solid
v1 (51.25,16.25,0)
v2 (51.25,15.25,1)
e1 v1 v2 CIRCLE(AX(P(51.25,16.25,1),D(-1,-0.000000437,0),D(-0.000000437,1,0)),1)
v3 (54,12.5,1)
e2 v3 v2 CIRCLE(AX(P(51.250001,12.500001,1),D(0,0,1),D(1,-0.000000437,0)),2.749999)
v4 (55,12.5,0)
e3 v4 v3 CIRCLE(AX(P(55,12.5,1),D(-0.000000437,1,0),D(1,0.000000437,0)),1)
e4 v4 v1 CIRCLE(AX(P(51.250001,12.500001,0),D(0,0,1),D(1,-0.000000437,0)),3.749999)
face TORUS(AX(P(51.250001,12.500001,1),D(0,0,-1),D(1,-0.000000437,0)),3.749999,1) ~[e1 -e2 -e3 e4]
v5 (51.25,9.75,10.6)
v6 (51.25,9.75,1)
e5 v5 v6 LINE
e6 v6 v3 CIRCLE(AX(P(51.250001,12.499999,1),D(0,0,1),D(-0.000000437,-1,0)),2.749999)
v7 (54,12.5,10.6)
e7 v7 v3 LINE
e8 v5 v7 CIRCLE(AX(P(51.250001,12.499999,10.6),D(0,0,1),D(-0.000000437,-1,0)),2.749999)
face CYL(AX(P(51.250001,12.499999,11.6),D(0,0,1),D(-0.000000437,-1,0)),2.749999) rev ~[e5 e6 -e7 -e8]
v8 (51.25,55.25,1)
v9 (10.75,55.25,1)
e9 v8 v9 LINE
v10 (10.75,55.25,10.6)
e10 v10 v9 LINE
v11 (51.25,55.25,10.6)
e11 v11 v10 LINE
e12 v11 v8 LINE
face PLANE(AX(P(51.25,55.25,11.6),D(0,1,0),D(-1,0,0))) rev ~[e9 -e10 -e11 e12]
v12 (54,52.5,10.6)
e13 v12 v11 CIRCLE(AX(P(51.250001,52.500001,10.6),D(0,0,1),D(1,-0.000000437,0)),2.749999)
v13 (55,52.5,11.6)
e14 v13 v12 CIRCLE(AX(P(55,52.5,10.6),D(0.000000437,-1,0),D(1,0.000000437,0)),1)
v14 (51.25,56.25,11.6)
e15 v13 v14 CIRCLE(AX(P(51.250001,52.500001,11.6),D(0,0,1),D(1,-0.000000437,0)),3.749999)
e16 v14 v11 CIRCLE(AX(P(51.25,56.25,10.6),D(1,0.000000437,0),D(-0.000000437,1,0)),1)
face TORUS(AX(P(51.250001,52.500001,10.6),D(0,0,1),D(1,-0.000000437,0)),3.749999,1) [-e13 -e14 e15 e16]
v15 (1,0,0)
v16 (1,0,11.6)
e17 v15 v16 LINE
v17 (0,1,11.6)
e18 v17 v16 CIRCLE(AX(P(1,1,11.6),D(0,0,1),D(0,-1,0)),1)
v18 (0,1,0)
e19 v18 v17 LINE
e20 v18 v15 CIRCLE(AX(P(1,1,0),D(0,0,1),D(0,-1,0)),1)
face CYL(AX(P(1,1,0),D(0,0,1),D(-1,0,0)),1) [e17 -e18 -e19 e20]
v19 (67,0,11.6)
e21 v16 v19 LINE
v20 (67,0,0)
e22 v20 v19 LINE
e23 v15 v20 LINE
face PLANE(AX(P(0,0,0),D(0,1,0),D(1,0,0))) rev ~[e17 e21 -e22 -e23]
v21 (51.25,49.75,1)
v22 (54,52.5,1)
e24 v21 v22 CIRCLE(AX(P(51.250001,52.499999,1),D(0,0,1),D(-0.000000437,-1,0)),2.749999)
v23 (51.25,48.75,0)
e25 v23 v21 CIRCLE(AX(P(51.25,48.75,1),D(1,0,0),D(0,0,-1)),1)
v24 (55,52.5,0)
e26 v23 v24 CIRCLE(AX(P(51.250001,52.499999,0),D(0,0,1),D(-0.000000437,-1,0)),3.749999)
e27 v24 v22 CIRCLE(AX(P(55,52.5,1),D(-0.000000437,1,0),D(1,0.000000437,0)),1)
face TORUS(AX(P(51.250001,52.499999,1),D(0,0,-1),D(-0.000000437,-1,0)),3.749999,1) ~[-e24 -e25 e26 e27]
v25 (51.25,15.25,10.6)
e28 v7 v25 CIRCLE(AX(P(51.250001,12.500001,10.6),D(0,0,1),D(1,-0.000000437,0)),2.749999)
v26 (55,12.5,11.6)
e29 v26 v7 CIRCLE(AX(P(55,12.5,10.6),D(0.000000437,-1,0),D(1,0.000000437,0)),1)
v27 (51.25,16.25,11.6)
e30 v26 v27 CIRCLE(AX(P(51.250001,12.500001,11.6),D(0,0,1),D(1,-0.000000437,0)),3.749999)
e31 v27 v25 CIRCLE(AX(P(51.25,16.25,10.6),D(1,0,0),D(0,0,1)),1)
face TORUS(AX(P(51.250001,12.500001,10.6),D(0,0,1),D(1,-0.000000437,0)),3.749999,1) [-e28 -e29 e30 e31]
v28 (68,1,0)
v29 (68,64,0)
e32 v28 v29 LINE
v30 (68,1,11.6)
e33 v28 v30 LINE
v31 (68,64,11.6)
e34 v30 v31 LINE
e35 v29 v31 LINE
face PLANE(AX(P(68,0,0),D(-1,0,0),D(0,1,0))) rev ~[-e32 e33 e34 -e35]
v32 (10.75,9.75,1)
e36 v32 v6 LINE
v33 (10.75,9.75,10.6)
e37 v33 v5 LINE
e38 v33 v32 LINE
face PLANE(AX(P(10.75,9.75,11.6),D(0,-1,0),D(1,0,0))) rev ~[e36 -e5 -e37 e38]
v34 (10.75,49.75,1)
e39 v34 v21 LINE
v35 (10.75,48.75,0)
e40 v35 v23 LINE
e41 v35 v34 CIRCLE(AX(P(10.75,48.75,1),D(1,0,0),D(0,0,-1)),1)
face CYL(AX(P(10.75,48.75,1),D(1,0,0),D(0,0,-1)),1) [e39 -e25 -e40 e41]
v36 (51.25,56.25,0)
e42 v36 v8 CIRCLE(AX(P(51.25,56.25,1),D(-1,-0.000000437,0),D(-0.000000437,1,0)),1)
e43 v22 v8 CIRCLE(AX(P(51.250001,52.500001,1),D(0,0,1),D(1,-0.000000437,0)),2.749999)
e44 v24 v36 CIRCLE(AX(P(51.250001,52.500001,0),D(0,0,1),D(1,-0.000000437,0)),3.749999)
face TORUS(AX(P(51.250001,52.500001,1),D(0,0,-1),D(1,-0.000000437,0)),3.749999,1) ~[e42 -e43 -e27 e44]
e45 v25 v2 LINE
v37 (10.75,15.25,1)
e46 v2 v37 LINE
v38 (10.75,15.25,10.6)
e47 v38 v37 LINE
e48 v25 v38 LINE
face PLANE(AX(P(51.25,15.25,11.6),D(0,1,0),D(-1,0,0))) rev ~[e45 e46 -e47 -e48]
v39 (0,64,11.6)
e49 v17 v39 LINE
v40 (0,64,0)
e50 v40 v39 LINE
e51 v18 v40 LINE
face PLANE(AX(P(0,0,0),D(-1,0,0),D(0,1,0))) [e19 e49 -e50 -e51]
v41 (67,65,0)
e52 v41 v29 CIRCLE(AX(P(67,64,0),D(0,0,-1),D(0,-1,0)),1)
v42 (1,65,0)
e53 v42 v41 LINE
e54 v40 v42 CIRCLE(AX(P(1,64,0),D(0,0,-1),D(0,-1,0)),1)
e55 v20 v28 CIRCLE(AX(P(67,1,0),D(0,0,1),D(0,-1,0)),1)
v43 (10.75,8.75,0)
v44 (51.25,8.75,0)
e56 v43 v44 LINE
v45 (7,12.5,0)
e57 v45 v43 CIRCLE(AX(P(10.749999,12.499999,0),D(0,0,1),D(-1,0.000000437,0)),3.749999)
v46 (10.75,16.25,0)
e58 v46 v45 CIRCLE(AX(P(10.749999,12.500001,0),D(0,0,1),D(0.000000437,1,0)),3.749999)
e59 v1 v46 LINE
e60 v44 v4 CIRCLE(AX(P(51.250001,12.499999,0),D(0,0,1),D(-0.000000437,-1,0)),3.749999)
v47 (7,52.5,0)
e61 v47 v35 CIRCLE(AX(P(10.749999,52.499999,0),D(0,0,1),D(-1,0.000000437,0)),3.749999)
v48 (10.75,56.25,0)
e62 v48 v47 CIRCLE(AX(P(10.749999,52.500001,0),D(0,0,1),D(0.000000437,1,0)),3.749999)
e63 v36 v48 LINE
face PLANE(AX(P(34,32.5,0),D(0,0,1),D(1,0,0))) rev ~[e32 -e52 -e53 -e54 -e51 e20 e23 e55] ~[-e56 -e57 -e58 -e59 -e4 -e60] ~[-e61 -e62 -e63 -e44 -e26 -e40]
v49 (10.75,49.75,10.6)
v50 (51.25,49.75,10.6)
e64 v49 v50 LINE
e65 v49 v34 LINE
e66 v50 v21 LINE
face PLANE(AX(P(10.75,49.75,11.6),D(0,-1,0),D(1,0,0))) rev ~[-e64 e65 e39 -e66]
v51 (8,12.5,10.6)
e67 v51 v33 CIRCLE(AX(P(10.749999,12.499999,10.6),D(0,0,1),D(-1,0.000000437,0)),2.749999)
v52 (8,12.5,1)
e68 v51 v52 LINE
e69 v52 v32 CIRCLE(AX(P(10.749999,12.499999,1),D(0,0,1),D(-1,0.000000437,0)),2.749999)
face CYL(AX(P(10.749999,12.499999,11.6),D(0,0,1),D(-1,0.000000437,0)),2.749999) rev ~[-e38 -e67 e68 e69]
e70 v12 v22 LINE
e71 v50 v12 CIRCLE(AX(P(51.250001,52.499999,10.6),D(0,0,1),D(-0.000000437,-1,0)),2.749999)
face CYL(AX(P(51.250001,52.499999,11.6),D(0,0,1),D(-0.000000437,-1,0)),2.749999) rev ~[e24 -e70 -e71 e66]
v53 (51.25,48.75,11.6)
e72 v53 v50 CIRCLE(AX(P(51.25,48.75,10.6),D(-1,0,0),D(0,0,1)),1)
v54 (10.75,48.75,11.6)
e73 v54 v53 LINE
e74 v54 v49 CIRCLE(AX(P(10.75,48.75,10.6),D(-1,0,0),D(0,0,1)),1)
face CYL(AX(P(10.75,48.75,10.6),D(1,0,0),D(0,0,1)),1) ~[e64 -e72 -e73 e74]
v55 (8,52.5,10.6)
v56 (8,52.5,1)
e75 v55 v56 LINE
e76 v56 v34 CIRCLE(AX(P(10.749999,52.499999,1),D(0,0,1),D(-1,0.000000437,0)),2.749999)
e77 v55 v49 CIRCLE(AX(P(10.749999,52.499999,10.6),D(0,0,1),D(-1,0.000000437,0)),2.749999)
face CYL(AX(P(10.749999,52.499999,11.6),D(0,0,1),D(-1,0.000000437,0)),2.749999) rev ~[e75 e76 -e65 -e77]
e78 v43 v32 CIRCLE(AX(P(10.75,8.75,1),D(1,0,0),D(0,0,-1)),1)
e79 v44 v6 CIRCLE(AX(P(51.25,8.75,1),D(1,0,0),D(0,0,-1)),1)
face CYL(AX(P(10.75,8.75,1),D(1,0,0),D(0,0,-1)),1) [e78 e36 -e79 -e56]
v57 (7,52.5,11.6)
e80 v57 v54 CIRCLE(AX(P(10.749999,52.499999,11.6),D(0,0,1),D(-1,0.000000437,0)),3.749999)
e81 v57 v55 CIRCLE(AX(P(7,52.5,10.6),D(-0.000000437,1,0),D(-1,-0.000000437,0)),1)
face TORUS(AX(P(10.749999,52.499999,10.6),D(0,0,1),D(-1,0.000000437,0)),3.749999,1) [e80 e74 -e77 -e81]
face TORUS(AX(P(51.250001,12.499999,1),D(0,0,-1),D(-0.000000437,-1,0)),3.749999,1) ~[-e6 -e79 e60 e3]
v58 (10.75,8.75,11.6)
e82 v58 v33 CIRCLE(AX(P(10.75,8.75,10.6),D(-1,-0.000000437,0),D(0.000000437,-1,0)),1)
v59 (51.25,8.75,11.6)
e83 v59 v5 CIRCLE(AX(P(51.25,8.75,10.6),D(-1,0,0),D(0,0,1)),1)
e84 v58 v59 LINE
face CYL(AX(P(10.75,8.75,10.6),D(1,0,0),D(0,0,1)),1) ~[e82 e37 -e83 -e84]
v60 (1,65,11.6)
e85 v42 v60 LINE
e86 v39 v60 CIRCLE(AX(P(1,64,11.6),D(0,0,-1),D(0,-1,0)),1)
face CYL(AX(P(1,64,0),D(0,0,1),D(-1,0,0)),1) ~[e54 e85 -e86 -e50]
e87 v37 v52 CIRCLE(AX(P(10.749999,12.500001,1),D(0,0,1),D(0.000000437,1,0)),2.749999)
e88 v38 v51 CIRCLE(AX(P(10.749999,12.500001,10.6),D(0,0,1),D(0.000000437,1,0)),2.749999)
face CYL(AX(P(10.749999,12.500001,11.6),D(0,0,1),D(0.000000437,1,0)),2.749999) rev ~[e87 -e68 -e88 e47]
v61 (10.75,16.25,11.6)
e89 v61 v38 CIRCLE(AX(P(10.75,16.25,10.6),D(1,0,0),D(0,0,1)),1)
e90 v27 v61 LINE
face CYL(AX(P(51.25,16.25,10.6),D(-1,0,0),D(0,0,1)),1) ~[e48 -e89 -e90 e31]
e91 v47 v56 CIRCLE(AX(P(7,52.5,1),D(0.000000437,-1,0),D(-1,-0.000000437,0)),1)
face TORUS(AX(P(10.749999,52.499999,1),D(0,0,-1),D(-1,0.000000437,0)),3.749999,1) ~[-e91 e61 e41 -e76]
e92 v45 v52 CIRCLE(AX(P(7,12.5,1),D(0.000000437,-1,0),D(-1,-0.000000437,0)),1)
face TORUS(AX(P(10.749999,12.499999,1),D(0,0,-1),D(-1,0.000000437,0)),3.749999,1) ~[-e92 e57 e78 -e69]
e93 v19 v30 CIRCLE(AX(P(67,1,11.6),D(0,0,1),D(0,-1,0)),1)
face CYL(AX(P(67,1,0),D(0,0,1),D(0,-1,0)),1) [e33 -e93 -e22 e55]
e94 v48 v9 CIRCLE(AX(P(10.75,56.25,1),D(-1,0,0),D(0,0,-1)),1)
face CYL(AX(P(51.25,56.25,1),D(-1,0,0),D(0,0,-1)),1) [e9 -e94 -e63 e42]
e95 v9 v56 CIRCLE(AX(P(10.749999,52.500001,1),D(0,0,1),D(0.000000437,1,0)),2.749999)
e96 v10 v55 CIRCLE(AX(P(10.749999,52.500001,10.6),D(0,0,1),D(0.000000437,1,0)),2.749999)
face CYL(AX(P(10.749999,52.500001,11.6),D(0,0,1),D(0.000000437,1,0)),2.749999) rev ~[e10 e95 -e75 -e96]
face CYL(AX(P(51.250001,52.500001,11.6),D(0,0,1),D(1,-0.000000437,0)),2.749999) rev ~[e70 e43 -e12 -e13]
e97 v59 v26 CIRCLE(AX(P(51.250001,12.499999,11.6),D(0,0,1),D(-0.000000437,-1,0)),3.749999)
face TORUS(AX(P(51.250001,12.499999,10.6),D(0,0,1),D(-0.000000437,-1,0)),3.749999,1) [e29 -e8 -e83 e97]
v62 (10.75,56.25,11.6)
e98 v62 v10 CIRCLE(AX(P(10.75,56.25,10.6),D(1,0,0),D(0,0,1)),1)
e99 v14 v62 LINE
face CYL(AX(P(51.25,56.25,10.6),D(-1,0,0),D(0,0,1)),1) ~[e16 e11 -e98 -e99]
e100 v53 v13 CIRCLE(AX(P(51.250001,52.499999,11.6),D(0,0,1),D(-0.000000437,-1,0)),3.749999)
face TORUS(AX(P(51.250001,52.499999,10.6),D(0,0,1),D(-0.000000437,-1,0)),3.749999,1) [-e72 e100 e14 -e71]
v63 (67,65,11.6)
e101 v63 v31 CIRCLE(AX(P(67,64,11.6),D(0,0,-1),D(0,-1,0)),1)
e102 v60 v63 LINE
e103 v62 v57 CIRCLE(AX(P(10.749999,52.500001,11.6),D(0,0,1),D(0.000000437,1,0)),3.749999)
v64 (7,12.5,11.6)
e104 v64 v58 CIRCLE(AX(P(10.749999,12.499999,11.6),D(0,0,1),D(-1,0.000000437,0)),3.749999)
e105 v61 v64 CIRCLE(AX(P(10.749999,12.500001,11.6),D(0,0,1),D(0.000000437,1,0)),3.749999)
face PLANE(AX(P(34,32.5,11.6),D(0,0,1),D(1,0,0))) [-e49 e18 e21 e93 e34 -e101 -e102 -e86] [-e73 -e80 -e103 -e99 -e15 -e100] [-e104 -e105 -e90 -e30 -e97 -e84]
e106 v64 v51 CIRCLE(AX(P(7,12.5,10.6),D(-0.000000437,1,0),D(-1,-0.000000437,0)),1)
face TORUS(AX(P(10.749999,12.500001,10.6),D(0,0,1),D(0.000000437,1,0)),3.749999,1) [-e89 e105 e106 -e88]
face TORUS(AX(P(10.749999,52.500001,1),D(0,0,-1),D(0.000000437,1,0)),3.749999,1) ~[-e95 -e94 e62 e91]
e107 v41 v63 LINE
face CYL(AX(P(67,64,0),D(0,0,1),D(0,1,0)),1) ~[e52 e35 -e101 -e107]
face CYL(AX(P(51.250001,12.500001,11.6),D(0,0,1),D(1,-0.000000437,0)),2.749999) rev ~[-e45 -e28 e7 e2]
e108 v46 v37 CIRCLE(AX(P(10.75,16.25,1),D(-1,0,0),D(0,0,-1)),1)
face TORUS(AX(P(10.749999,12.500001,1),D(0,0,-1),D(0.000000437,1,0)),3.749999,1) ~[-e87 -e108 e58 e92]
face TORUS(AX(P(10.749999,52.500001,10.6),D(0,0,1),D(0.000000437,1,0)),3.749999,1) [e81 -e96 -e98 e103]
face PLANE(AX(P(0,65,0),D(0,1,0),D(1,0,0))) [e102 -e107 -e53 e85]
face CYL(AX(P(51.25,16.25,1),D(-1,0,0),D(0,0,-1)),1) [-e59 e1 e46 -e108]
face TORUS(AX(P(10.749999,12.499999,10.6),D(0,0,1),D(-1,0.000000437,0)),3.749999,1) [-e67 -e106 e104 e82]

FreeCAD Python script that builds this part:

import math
import FreeCAD as App
import Part
import Sketcher
from FreeCAD import Vector


def edges_at(feature, points):
    """Names of the edges that pass closest to the given points."""
    edges = feature.Shape.Edges
    near = lambda p: min(range(len(edges)), key=lambda i: edges[i].distToShape(Part.Vertex(*p))[0])
    return sorted({f"Edge{near(p) + 1}" for p in points})


def add_polygon(sketch, points):
    """Adds a closed chain of lines whose ends are joined by coincident constraints."""
    first, n = sketch.GeometryCount, len(points)
    for a, b in zip(points, points[1:] + points[:1]):
        sketch.addGeometry(Part.LineSegment(App.Vector(*a, 0), App.Vector(*b, 0)), False)
    for i in range(n):
        sketch.addConstraint(Sketcher.Constraint("Coincident", first + i, 2, first + (i + 1) % n, 1))

doc = App.newDocument("Part")
body = doc.addObject("PartDesign::Body", "Body")

# Sketch on XY plane
sketch1 = body.newObject("Sketcher::SketchObject", "Sketch")
sketch1.AttachmentSupport = (doc.getObject("XY_Plane"), [""])
sketch1.MapMode = "FlatFace"
add_polygon(sketch1, [(0, 65), (0, 0), (68, 0), (68, 65)])  # lines 0-3
sketch1.addConstraint([
    Sketcher.Constraint("Vertical", 0),
    Sketcher.Constraint("Horizontal", 1),
    Sketcher.Constraint("Vertical", 2),
    Sketcher.Constraint("Horizontal", 3),
    Sketcher.Constraint("Coincident", 0, 2, -1, 1),
    Sketcher.Constraint("DistanceX", 1, 1, 1, 2, 68.0),
    Sketcher.Constraint("DistanceY", 0, 2, 0, 1, 65.0),
])
pad1 = body.newObject("PartDesign::Pad", "Pad")
pad1.Profile = sketch1
pad1.Length = 11.6

# Sketch on XY plane
sketch2 = body.newObject("Sketcher::SketchObject", "Sketch001")
sketch2.AttachmentSupport = (doc.getObject("XY_Plane"), [""])
sketch2.MapMode = "FlatFace"
sketch2.AttachmentOffset = App.Placement(Vector(0, 0, 11.6), App.Rotation())
sketch2.addGeometry([
    Part.LineSegment(Vector(51.2, 15.2, 0), Vector(10.8, 15.2, 0)),  # 0
    Part.ArcOfCircle(Part.Circle(Vector(10.7, 12.5, 0), Vector(0, 0, 1), 2.7), math.radians(90), math.radians(180)),  # 1
    Part.ArcOfCircle(Part.Circle(Vector(10.7, 12.5, 0), Vector(0, 0, 1), 2.7), math.radians(180), math.radians(270)),  # 2
    Part.LineSegment(Vector(10.8, 9.8, 0), Vector(51.2, 9.8, 0)),  # 3
    Part.ArcOfCircle(Part.Circle(Vector(51.3, 12.5, 0), Vector(0, 0, 1), 2.7), math.radians(-90), math.radians(0)),  # 4
    Part.ArcOfCircle(Part.Circle(Vector(51.3, 12.5, 0), Vector(0, 0, 1), 2.7), math.radians(0), math.radians(90)),  # 5
    Part.LineSegment(Vector(51.2, 55.2, 0), Vector(10.8, 55.2, 0)),  # 6
    Part.ArcOfCircle(Part.Circle(Vector(10.7, 52.5, 0), Vector(0, 0, 1), 2.7), math.radians(90), math.radians(180)),  # 7
    Part.ArcOfCircle(Part.Circle(Vector(10.7, 52.5, 0), Vector(0, 0, 1), 2.7), math.radians(180), math.radians(270)),  # 8
    Part.LineSegment(Vector(10.8, 49.8, 0), Vector(51.2, 49.8, 0)),  # 9
    Part.ArcOfCircle(Part.Circle(Vector(51.3, 52.5, 0), Vector(0, 0, 1), 2.7), math.radians(-90), math.radians(0)),  # 10
    Part.ArcOfCircle(Part.Circle(Vector(51.3, 52.5, 0), Vector(0, 0, 1), 2.7), math.radians(0), math.radians(90)),  # 11
], False)
sketch2.addConstraint([
    Sketcher.Constraint("Tangent", 0, 2, 1, 1),
    Sketcher.Constraint("Tangent", 1, 2, 2, 1),
    Sketcher.Constraint("Tangent", 2, 2, 3, 1),
    Sketcher.Constraint("Tangent", 3, 2, 4, 1),
    Sketcher.Constraint("Tangent", 4, 2, 5, 1),
    Sketcher.Constraint("Tangent", 5, 2, 0, 1),
    Sketcher.Constraint("Tangent", 6, 2, 7, 1),
    Sketcher.Constraint("Tangent", 7, 2, 8, 1),
    Sketcher.Constraint("Tangent", 8, 2, 9, 1),
    Sketcher.Constraint("Tangent", 9, 2, 10, 1),
    Sketcher.Constraint("Tangent", 10, 2, 11, 1),
    Sketcher.Constraint("Tangent", 11, 2, 6, 1),
    Sketcher.Constraint("Horizontal", 0),
    Sketcher.Constraint("Horizontal", 3),
    Sketcher.Constraint("Horizontal", 6),
    Sketcher.Constraint("Horizontal", 9),
    Sketcher.Constraint("Equal", 1, 2),
    Sketcher.Constraint("Equal", 2, 4),
    Sketcher.Constraint("Equal", 5, 7),
    Sketcher.Constraint("Equal", 7, 8),
    Sketcher.Constraint("Equal", 8, 10),
    Sketcher.Constraint("Horizontal", 5, 3, 1, 2),
    Sketcher.Constraint("Horizontal", 1, 2, 4, 2),
    Sketcher.Constraint("Horizontal", 11, 3, 7, 2),
    Sketcher.Constraint("Horizontal", 7, 2, 10, 2),
    Sketcher.Constraint("Vertical", 2, 3, 7, 3),
    Sketcher.Constraint("Vertical", 5, 3, 10, 3),
    Sketcher.Constraint("Radius", 1, 2.749999),
    Sketcher.Constraint("DistanceX", 0, 2, 0, 1, 40.5),
    Sketcher.Constraint("DistanceX", -1, 1, 1, 2, 8.0),
    Sketcher.Constraint("DistanceY", 1, 3, 7, 3, 40.0),
    Sketcher.Constraint("DistanceY", -1, 1, 1, 3, 12.500001),
])
pocket1 = body.newObject("PartDesign::Pocket", "Pocket")
pocket1.Profile = sketch2
pocket1.Length = 25
doc.recompute()

fillet = body.newObject("PartDesign::Fillet", "Fillet")
fillet.Base = (pocket1, edges_at(pocket1, [
    (31, 49.75, 0),
    (31, 9.75, 0),
    (31, 49.75, 11.6),
    (31, 15.25, 11.6),
    (68, 0, 5.8),
    (68, 65, 5.8),
    (0, 65, 5.8),
    (0, 0, 5.8),
]))
fillet.Radius = 1

doc.recompute()
